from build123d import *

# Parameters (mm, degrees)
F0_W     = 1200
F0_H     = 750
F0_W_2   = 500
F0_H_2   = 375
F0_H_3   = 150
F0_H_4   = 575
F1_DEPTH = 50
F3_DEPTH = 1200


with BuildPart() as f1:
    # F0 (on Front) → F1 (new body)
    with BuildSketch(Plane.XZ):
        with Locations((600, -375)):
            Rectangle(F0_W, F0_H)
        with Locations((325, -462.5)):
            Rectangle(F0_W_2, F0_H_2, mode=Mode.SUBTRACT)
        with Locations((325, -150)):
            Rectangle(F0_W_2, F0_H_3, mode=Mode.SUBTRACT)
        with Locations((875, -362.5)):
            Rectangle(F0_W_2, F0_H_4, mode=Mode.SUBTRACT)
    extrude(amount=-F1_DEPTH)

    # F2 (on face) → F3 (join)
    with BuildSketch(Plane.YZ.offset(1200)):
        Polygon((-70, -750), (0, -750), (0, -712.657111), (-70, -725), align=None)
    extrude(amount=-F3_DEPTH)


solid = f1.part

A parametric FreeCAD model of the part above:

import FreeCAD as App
import Part
import Sketcher
Q = App.Units.Quantity

doc = App.newDocument("Part")
body = doc.addObject("PartDesign::Body", "Body")

# Sketch on XZ plane
sketch1 = body.newObject("Sketcher::SketchObject", "Sketch")
sketch1.AttachmentSupport = (doc.getObject("XZ_Plane"), [""])
sketch1.MapMode = "FlatFace"
sketch1.addGeometry([
    Part.LineSegment(App.Vector(0, 0, 0), App.Vector(0, -750, 0)),  # 0
    Part.LineSegment(App.Vector(0, -750, 0), App.Vector(1200, -750, 0)),  # 1
    Part.LineSegment(App.Vector(1200, -750, 0), App.Vector(1200, 0, 0)),  # 2
    Part.LineSegment(App.Vector(1200, 0, 0), App.Vector(0, 0, 0)),  # 3
    Part.LineSegment(App.Vector(575, -650, 0), App.Vector(75, -650, 0)),  # 4
    Part.LineSegment(App.Vector(75, -650, 0), App.Vector(75, -275, 0)),  # 5
    Part.LineSegment(App.Vector(75, -275, 0), App.Vector(575, -275, 0)),  # 6
    Part.LineSegment(App.Vector(575, -275, 0), App.Vector(575, -650, 0)),  # 7
    Part.LineSegment(App.Vector(575, -225, 0), App.Vector(75, -225, 0)),  # 8
    Part.LineSegment(App.Vector(75, -225, 0), App.Vector(75, -75, 0)),  # 9
    Part.LineSegment(App.Vector(75, -75, 0), App.Vector(575, -75, 0)),  # 10
    Part.LineSegment(App.Vector(575, -75, 0), App.Vector(575, -225, 0)),  # 11
    Part.LineSegment(App.Vector(1125, -650, 0), App.Vector(625, -650, 0)),  # 12
    Part.LineSegment(App.Vector(625, -650, 0), App.Vector(625, -75, 0)),  # 13
    Part.LineSegment(App.Vector(625, -75, 0), App.Vector(1125, -75, 0)),  # 14
    Part.LineSegment(App.Vector(1125, -75, 0), App.Vector(1125, -650, 0)),  # 15
], False)
sketch1.addConstraint([
    Sketcher.Constraint("Coincident", 0, 2, 1, 1),
    Sketcher.Constraint("Coincident", 1, 2, 2, 1),
    Sketcher.Constraint("Coincident", 2, 2, 3, 1),
    Sketcher.Constraint("Coincident", 3, 2, 0, 1),
    Sketcher.Constraint("Coincident", 4, 2, 5, 1),
    Sketcher.Constraint("Coincident", 5, 2, 6, 1),
    Sketcher.Constraint("Coincident", 6, 2, 7, 1),
    Sketcher.Constraint("Coincident", 7, 2, 4, 1),
    Sketcher.Constraint("Coincident", 8, 2, 9, 1),
    Sketcher.Constraint("Coincident", 9, 2, 10, 1),
    Sketcher.Constraint("Coincident", 10, 2, 11, 1),
    Sketcher.Constraint("Coincident", 11, 2, 8, 1),
    Sketcher.Constraint("Coincident", 12, 2, 13, 1),
    Sketcher.Constraint("Coincident", 13, 2, 14, 1),
    Sketcher.Constraint("Coincident", 14, 2, 15, 1),
    Sketcher.Constraint("Coincident", 15, 2, 12, 1),
    Sketcher.Constraint("Vertical", 0),
    Sketcher.Constraint("Horizontal", 1),
    Sketcher.Constraint("Vertical", 2),
    Sketcher.Constraint("Horizontal", 3),
    Sketcher.Constraint("Horizontal", 4),
    Sketcher.Constraint("Vertical", 5),
    Sketcher.Constraint("Horizontal", 6),
    Sketcher.Constraint("Vertical", 7),
    Sketcher.Constraint("Horizontal", 8),
    Sketcher.Constraint("Vertical", 9),
    Sketcher.Constraint("Horizontal", 10),
    Sketcher.Constraint("Vertical", 11),
    Sketcher.Constraint("Horizontal", 12),
    Sketcher.Constraint("Vertical", 13),
    Sketcher.Constraint("Horizontal", 14),
    Sketcher.Constraint("Vertical", 15),
    Sketcher.Constraint("Coincident", 3, 2, -1, 1),
    Sketcher.Constraint("Horizontal", 7, 2, 12, 2),
    Sketcher.Constraint("Horizontal", 10, 2, 13, 2),
    Sketcher.Constraint("Vertical", 5, 2, 8, 2),
    Sketcher.Constraint("Vertical", 7, 2, 10, 2),
    Sketcher.Constraint("Equal", 10, 12),
    Sketcher.Constraint("DistanceX", 1, 1, 1, 2, Q("1200 mm")),
    Sketcher.Constraint("DistanceX", 4, 2, 4, 1, Q("500 mm")),
    Sketcher.Constraint("DistanceY", 0, 2, 0, 1, Q("750 mm")),
    Sketcher.Constraint("DistanceY", 5, 1, 5, 2, Q("375 mm")),
    Sketcher.Constraint("DistanceY", 9, 1, 9, 2, Q("150 mm")),
    Sketcher.Constraint("DistanceY", 13, 1, 13, 2, Q("575 mm")),
    Sketcher.Constraint("DistanceX", -1, 1, 4, 2, Q("75 mm")),
    Sketcher.Constraint("DistanceY", 4, 2, -1, 1, Q("650 mm")),
    Sketcher.Constraint("DistanceX", -1, 1, 12, 2, Q("625 mm")),
])
pad1 = body.newObject("PartDesign::Pad", "Pad")
pad1.Profile = sketch1
pad1.Length = 50
pad1.Reversed = True

# Sketch on YZ plane
sketch2 = body.newObject("Sketcher::SketchObject", "Sketch001")
sketch2.AttachmentSupport = (doc.getObject("YZ_Plane"), [""])
sketch2.MapMode = "FlatFace"
sketch2.AttachmentOffset = App.Placement(App.Vector(0, 0, 1200), App.Rotation())
sketch2.addGeometry([
    Part.LineSegment(App.Vector(-70, -750, 0), App.Vector(0, -750, 0)),
    Part.LineSegment(App.Vector(0, -750, 0), App.Vector(0, -712.657111, 0)),
    Part.LineSegment(App.Vector(0, -712.657111, 0), App.Vector(-70, -725, 0)),
    Part.LineSegment(App.Vector(-70, -725, 0), App.Vector(-70, -750, 0)),
], False)
sketch2.addConstraint([
    Sketcher.Constraint("Coincident", 0, 2, 1, 1),
    Sketcher.Constraint("Coincident", 1, 2, 2, 1),
    Sketcher.Constraint("Coincident", 2, 2, 3, 1),
    Sketcher.Constraint("Coincident", 3, 2, 0, 1),
    Sketcher.Constraint("Horizontal", 0),
    Sketcher.Constraint("Vertical", 1),
    Sketcher.Constraint("Vertical", 3),
    Sketcher.Constraint("PointOnObject", 0, 2, -2),
    Sketcher.Constraint("DistanceX", 0, 1, 0, 2, Q("70 mm")),
    Sketcher.Constraint("DistanceY", 3, 2, 3, 1, Q("25 mm")),
    Sketcher.Constraint("Angle", 2, Q("-170 deg")),
    Sketcher.Constraint("DistanceY", 0, 2, -1, 1, Q("750 mm")),
])
pad2 = body.newObject("PartDesign::Pad", "Pad001")
pad2.Profile = sketch2
pad2.Length = 1200
pad2.Reversed = True

doc.recompute()
